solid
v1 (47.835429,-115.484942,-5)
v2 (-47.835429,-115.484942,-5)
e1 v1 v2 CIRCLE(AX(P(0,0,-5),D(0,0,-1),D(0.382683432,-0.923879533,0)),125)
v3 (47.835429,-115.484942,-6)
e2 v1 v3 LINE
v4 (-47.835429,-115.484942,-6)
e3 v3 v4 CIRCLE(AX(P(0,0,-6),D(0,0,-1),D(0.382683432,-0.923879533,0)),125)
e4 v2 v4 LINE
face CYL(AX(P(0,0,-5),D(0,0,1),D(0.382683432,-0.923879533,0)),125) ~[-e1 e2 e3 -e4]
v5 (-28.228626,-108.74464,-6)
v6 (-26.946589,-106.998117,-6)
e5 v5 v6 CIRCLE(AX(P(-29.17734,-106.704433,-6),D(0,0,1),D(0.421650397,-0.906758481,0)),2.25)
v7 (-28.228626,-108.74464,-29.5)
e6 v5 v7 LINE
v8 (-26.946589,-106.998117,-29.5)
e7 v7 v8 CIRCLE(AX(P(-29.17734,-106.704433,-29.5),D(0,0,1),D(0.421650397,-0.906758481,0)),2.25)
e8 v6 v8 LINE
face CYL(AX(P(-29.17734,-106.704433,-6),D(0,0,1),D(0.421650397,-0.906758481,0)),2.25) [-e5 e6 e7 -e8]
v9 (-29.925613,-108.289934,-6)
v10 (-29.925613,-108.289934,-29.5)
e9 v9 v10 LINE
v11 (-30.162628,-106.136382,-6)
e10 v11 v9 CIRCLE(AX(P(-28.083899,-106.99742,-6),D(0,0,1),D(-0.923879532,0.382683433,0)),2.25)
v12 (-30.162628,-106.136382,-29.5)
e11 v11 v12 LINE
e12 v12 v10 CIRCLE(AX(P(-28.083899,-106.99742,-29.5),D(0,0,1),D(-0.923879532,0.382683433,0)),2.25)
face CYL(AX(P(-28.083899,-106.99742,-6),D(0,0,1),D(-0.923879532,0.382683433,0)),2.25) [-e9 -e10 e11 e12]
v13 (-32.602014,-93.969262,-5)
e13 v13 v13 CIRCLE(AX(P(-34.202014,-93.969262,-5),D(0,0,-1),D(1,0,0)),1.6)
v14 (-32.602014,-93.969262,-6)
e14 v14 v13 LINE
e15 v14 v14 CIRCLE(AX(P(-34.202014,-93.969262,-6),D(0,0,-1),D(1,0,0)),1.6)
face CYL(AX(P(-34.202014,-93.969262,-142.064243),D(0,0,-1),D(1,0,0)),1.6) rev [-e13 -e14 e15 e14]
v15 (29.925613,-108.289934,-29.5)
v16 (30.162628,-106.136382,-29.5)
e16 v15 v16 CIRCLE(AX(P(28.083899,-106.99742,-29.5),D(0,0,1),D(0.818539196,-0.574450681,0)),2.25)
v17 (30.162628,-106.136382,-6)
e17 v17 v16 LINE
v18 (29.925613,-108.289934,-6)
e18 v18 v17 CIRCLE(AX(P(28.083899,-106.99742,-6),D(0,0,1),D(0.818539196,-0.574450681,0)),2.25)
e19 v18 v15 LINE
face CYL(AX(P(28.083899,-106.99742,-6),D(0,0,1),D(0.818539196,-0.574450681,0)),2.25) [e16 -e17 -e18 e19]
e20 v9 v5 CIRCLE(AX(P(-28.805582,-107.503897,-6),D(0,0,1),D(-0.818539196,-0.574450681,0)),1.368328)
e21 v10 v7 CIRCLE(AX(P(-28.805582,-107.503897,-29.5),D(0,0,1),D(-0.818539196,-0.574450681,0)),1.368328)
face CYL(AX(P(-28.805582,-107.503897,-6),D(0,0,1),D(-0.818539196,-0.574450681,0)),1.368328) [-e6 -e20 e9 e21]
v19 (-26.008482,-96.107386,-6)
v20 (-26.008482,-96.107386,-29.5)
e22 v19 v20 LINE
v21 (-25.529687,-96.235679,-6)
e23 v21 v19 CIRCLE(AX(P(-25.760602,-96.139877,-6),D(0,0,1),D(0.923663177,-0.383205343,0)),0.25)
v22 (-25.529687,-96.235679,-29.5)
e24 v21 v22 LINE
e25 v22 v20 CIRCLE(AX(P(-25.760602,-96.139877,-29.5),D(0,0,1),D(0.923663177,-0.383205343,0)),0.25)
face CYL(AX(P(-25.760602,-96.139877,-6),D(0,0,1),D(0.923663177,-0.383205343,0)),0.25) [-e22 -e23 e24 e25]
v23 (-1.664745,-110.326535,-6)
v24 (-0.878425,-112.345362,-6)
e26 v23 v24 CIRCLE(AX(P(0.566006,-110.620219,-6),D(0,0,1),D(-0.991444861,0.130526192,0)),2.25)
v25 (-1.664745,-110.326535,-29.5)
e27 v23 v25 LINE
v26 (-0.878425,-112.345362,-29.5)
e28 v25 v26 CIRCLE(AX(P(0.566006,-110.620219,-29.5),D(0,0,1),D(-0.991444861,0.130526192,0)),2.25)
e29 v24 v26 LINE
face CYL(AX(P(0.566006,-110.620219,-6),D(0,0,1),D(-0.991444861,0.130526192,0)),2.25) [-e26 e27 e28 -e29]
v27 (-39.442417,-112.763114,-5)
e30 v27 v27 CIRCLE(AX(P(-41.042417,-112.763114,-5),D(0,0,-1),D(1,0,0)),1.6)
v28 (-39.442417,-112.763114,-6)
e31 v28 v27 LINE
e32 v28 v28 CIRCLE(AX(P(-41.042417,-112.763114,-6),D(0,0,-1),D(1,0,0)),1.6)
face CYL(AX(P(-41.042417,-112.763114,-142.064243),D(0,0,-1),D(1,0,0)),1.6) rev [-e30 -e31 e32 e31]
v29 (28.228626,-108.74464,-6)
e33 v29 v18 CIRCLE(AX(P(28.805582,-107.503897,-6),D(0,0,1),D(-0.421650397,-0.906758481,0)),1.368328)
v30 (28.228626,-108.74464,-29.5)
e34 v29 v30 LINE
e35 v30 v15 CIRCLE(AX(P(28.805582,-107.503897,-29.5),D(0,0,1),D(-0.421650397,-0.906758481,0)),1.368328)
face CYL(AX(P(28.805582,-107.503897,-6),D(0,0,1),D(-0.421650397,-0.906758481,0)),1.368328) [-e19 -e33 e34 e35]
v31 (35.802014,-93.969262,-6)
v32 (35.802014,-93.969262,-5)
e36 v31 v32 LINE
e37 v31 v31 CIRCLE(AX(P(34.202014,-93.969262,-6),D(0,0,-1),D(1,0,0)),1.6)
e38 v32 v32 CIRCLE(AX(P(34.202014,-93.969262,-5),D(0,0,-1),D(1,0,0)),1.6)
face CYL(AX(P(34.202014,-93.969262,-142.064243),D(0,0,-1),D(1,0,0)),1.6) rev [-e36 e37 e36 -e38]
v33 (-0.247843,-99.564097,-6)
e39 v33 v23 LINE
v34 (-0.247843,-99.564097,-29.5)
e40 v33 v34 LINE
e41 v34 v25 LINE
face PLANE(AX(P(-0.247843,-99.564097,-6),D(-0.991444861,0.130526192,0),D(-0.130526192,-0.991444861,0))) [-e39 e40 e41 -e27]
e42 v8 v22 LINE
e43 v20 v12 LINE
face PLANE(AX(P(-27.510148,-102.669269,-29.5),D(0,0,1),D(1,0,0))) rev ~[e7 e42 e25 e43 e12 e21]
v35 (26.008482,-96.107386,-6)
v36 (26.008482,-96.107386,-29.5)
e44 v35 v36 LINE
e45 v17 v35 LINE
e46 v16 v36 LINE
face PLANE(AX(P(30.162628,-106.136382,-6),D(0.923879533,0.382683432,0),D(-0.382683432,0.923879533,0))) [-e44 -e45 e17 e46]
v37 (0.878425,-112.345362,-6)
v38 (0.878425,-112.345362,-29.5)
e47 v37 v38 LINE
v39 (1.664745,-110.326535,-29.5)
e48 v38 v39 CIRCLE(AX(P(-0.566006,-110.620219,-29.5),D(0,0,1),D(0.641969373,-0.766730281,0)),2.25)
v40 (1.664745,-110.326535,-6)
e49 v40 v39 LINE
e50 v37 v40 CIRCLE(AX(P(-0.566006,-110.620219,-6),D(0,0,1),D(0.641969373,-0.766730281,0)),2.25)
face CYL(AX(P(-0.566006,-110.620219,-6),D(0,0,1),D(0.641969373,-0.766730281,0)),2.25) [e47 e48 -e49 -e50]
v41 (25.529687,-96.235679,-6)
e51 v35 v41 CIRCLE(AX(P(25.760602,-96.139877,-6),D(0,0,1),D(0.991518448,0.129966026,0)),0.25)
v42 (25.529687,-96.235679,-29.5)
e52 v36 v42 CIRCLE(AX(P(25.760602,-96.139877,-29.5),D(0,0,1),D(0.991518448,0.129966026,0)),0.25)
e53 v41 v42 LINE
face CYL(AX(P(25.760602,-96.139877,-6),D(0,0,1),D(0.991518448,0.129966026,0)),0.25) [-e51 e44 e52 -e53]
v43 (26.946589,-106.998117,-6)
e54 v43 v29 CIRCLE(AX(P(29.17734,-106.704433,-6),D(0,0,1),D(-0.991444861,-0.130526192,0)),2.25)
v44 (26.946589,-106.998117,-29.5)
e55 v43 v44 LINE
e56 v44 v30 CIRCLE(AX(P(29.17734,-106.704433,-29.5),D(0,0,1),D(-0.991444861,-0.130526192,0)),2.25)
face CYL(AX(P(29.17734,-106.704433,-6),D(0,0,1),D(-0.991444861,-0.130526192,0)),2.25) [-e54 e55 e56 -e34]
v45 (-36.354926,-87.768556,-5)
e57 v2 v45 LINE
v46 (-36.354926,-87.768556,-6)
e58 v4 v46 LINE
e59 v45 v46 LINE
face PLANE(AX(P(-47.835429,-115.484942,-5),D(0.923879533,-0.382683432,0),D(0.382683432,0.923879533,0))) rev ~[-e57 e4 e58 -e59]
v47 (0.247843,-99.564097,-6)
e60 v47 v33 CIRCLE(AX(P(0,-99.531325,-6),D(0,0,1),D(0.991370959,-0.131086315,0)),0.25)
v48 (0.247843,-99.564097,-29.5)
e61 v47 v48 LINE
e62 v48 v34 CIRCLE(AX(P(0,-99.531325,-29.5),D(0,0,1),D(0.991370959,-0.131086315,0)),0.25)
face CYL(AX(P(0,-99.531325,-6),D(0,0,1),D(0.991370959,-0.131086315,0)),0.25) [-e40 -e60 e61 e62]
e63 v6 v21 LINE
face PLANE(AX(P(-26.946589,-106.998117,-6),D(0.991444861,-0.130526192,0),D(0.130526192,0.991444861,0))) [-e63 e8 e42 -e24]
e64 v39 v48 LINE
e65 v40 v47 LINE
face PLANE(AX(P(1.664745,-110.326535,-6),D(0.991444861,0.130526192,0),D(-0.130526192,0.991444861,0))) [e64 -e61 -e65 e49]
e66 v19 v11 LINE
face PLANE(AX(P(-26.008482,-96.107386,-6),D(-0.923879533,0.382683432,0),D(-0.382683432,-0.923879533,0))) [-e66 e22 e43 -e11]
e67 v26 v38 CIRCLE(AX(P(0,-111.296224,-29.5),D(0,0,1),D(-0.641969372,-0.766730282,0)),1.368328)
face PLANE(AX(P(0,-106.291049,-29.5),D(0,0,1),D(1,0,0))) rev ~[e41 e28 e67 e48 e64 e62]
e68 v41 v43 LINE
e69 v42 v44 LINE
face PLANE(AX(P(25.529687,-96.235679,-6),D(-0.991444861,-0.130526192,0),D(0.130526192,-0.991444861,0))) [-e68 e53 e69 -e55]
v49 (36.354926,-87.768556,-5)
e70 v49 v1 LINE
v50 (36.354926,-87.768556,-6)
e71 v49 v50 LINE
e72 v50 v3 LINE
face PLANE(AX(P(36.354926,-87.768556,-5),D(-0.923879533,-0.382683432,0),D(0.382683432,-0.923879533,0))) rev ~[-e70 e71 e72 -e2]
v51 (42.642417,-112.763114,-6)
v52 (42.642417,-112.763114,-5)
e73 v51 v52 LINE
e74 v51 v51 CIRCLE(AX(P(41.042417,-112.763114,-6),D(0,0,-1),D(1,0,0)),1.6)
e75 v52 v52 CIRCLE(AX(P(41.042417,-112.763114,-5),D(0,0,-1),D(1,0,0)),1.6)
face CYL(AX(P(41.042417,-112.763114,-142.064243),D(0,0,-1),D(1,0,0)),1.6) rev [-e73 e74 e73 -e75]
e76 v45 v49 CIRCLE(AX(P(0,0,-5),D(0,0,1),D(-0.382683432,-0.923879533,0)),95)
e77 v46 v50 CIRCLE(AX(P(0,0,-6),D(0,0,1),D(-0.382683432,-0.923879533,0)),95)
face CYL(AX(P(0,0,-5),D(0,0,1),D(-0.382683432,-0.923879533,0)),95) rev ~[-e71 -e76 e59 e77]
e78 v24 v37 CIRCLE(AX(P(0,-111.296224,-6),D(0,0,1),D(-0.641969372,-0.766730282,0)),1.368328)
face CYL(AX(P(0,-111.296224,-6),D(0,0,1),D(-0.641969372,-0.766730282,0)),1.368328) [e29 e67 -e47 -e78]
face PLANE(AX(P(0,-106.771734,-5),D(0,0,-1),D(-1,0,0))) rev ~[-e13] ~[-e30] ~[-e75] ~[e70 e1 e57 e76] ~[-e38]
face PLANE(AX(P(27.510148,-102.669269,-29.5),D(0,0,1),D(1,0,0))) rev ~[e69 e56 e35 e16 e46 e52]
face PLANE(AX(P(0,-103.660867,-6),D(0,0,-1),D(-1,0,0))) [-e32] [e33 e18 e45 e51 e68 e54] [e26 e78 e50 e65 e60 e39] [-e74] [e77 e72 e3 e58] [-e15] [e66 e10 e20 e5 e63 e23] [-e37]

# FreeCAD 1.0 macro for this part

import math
import FreeCAD as App
import Part
import Sketcher

V = App.Vector
Q = App.Units.Quantity

doc = App.newDocument("Part")
params = doc.addObject("Spreadsheet::Sheet", "Params")
for row, (alias, value) in enumerate([
    ("sketch1_radius", "125 mm"),
    ("sketch1_radius2", "95 mm"),
    ("sketch1_radius3", "100.75 mm"),
    ("sketch1_radius4", "109.25 mm"),
    ("pad1_length", "1 mm"),
    ("sketch2_radius", "100.75 mm"),
    ("sketch2_radius2", "109.25 mm"),
    ("pad2_length", "5 mm"),
    ("sketch3_radius", "100.75 mm"),
    ("sketch3_radius2", "109.25 mm"),
    ("pad3_length", "1 mm"),
    ("pad3_length2", "6 mm"),
    ("sketch4_radius", "0.25 mm"),
    ("sketch4_radius2", "2.25 mm"),
    ("pad4_length", "23.5 mm"),
    ("sketch5_radius", "109.25 mm"),
    ("sketch5_radius2", "100.75 mm"),
    ("pocket1_length", "6 mm"),
    ("sketch6_diameter", "3.2 mm"),
], start=1):
    params.set(f"A{row}", alias)
    params.set(f"B{row}", "=" + value)
    params.setAlias(f"B{row}", alias)

body = doc.addObject("PartDesign::Body", "Body")

# Sketch on XY plane
sketch1 = body.newObject("Sketcher::SketchObject", "Sketch")
sketch1.AttachmentSupport = (doc.getObject("XY_Plane"), [""])
sketch1.MapMode = "FlatFace"
sketch1.AttachmentOffset = App.Placement(V(0, 0, -5), App.Rotation())
sketch1.addGeometry([
    Part.LineSegment(V(-36.354926, -87.768556, 0), V(-47.835429, -115.484942, 0)),  # 0
    Part.ArcOfCircle(Part.Circle(V(0, 0, 0), V(0, 0, 1), 125), math.radians(-112.5), math.radians(-67.5)),  # 1
    Part.LineSegment(V(47.835429, -115.484942, 0), V(36.354926, -87.768556, 0)),  # 2
    Part.ArcOfCircle(Part.Circle(V(0, 0, 0), V(0, 0, 1), 95), math.radians(-112.5), math.radians(-67.5)),  # 3
    Part.LineSegment(V(-26.038477, -106.10165, 0), V(-23.955924, -97.860494, 0)),  # 4
    Part.ArcOfCircle(Part.Circle(V(0, 0, 0), V(0, 0, 1), 100.75), math.radians(-103.75531), math.radians(-76.24469)),  # 5
    Part.LineSegment(V(23.955924, -97.860494, 0), V(26.038477, -106.10165, 0)),  # 6
    Part.ArcOfCircle(Part.Circle(V(0, 0, 0), V(0, 0, 1), 109.25), math.radians(-103.788496), math.radians(-76.211504)),  # 7
], False)
sketch1.addConstraint([
    Sketcher.Constraint("Coincident", 0, 2, 1, 1),
    Sketcher.Constraint("Coincident", 1, 2, 2, 1),
    Sketcher.Constraint("Coincident", 2, 2, 3, 2),
    Sketcher.Constraint("Coincident", 3, 1, 0, 1),
    Sketcher.Constraint("Coincident", 4, 2, 5, 1),
    Sketcher.Constraint("Coincident", 5, 2, 6, 1),
    Sketcher.Constraint("Coincident", 6, 2, 7, 2),
    Sketcher.Constraint("Coincident", 7, 1, 4, 1),
    Sketcher.Constraint("Coincident", 1, 3, -1, 1),
    Sketcher.Constraint("Coincident", 3, 3, -1, 1),
    Sketcher.Constraint("Coincident", 5, 3, -1, 1),
    Sketcher.Constraint("Coincident", 7, 3, -1, 1),
    Sketcher.Constraint("Horizontal", 0, 2, 1, 2),
    Sketcher.Constraint("Horizontal", 2, 2, 3, 1),
    Sketcher.Constraint("Horizontal", 4, 2, 5, 2),
    Sketcher.Constraint("Horizontal", 6, 2, 7, 1),
    Sketcher.Constraint("Radius", 1, 125.0),
    Sketcher.Constraint("Radius", 3, 95.0),
    Sketcher.Constraint("Radius", 5, 100.75),
    Sketcher.Constraint("Radius", 7, 109.25),
    Sketcher.Constraint("Angle", 0, Q("-112.5 deg")),
    Sketcher.Constraint("DistanceX", 4, 2, 6, 2, 49.994401),
    Sketcher.Constraint("DistanceX", 0, 2, -1, 1, 47.835429),
    Sketcher.Constraint("DistanceY", 6, 2, -1, 1, 106.10165),
])
sketch1.setExpression("Constraints[16]", "Params.sketch1_radius")
sketch1.setExpression("Constraints[17]", "Params.sketch1_radius2")
sketch1.setExpression("Constraints[18]", "Params.sketch1_radius3")
sketch1.setExpression("Constraints[19]", "Params.sketch1_radius4")
pad1 = body.newObject("PartDesign::Pad", "Pad")
pad1.Profile = sketch1
pad1.setExpression("Length", "Params.pad1_length")
pad1.Reversed = True
body2 = doc.addObject("PartDesign::Body", "Body001")

# Sketch on XY plane
sketch2 = body2.newObject("Sketcher::SketchObject", "Sketch001")
sketch2.AttachmentSupport = (doc.getObject("XY_Plane001"), [""])
sketch2.MapMode = "FlatFace"
sketch2.AttachmentOffset = App.Placement(V(0, 0, -5), App.Rotation())
sketch2.addGeometry([
    Part.ArcOfCircle(Part.Circle(V(0, 0, 0), V(0, 0, 1), 100.75), math.radians(-103.75531), math.radians(-76.24469)),
    Part.LineSegment(V(-23.955924, -97.860494, 0), V(-26.038477, -106.10165, 0)),
    Part.ArcOfCircle(Part.Circle(V(0, 0, 0), V(0, 0, 1), 109.25), math.radians(-103.788496), math.radians(-76.211504)),
    Part.LineSegment(V(26.038477, -106.10165, 0), V(23.955924, -97.860494, 0)),
], False)
sketch2.addConstraint([
    Sketcher.Constraint("Coincident", 0, 1, 1, 1),
    Sketcher.Constraint("Coincident", 1, 2, 2, 1),
    Sketcher.Constraint("Coincident", 2, 2, 3, 1),
    Sketcher.Constraint("Coincident", 3, 2, 0, 2),
    Sketcher.Constraint("Coincident", 0, 3, -1, 1),
    Sketcher.Constraint("Coincident", 2, 3, -1, 1),
    Sketcher.Constraint("Horizontal", 1, 2, 2, 2),
    Sketcher.Constraint("Horizontal", 0, 1, 3, 2),
    Sketcher.Constraint("Radius", 0, 100.75),
    Sketcher.Constraint("Radius", 2, 109.25),
    Sketcher.Constraint("DistanceX", 0, 1, 2, 2, 49.994401),
    Sketcher.Constraint("DistanceY", 1, 2, -1, 1, 106.10165),
])
sketch2.setExpression("Constraints[8]", "Params.sketch2_radius")
sketch2.setExpression("Constraints[9]", "Params.sketch2_radius2")
pad2 = body2.newObject("PartDesign::Pad", "Pad001")
pad2.Profile = sketch2
pad2.setExpression("Length", "Params.pad2_length")
body.AllowCompound = True
doc.recompute()

boolean = body.newObject("PartDesign::Boolean", "Boolean")
boolean.Type = "Fuse"
boolean.addObjects([body2])

# Sketch on XY plane
sketch3 = body.newObject("Sketcher::SketchObject", "Sketch002")
sketch3.AttachmentSupport = (doc.getObject("XY_Plane"), [""])
sketch3.MapMode = "FlatFace"
sketch3.addGeometry([
    Part.ArcOfCircle(Part.Circle(V(0, 0, 0), V(0, 0, 1), 100.75), math.radians(-103.75531), math.radians(-76.24469)),
    Part.LineSegment(V(-23.955924, -97.860494, 0), V(-26.038477, -106.10165, 0)),
    Part.ArcOfCircle(Part.Circle(V(0, 0, 0), V(0, 0, 1), 109.25), math.radians(-103.788496), math.radians(-76.211504)),
    Part.LineSegment(V(26.038477, -106.10165, 0), V(23.955924, -97.860494, 0)),
], False)
sketch3.addConstraint([
    Sketcher.Constraint("Coincident", 0, 1, 1, 1),
    Sketcher.Constraint("Coincident", 1, 2, 2, 1),
    Sketcher.Constraint("Coincident", 2, 2, 3, 1),
    Sketcher.Constraint("Coincident", 3, 2, 0, 2),
    Sketcher.Constraint("Coincident", 0, 3, -1, 1),
    Sketcher.Constraint("Coincident", 2, 3, -1, 1),
    Sketcher.Constraint("Horizontal", 1, 2, 2, 2),
    Sketcher.Constraint("Horizontal", 0, 1, 3, 2),
    Sketcher.Constraint("Radius", 0, 100.75),
    Sketcher.Constraint("Radius", 2, 109.25),
    Sketcher.Constraint("DistanceX", 0, 1, 2, 2, 49.994401),
    Sketcher.Constraint("DistanceY", 1, 2, -1, 1, 106.10165),
])
sketch3.setExpression("Constraints[8]", "Params.sketch3_radius")
sketch3.setExpression("Constraints[9]", "Params.sketch3_radius2")
pad3 = body.newObject("PartDesign::Pad", "Pad002")
pad3.Profile = sketch3
pad3.Type = "TwoLengths"
pad3.setExpression("Length", "Params.pad3_length")
pad3.setExpression("Length2", "Params.pad3_length2")

# Sketch on XY plane
sketch4 = body.newObject("Sketcher::SketchObject", "Sketch003")
sketch4.AttachmentSupport = (doc.getObject("XY_Plane"), [""])
sketch4.MapMode = "FlatFace"
sketch4.AttachmentOffset = App.Placement(V(0, 0, -6), App.Rotation())
sketch4.addGeometry([
    Part.LineSegment(V(26.946589, -106.998117, 0), V(25.529687, -96.235679, 0)),  # 0
    Part.ArcOfCircle(Part.Circle(V(25.760602, -96.139877, 0), V(0, 0, 1), 0.25), math.radians(7.467629), math.radians(202.532371)),  # 1
    Part.LineSegment(V(26.008482, -96.107386, 0), V(30.162628, -106.136382, 0)),  # 2
    Part.ArcOfCircle(Part.Circle(V(28.083899, -106.99742, 0), V(0, 0, 1), 2.25), math.radians(-35.061172), math.radians(22.5)),  # 3
    Part.ArcOfCircle(Part.Circle(V(28.805582, -107.503897, 0), V(0, 0, 1), 1.368328), math.radians(-114.938828), math.radians(-35.061172)),  # 4
    Part.ArcOfCircle(Part.Circle(V(29.17734, -106.704433, 0), V(0, 0, 1), 2.25), math.radians(-172.5), math.radians(-114.938828)),  # 5
    Part.LineSegment(V(-1.664745, -110.326535, 0), V(-0.247843, -99.564097, 0)),  # 6
    Part.ArcOfCircle(Part.Circle(V(0, -99.531325, 0), V(0, 0, 1), 0.25), math.radians(-7.532371), math.radians(187.532371)),  # 7
    Part.LineSegment(V(0.247843, -99.564097, 0), V(1.664745, -110.326535, 0)),  # 8
    Part.ArcOfCircle(Part.Circle(V(-0.566006, -110.620219, 0), V(0, 0, 1), 2.25), math.radians(-50.061172), math.radians(7.5)),  # 9
    Part.ArcOfCircle(Part.Circle(V(0, -111.296224, 0), V(0, 0, 1), 1.368328), math.radians(-129.938828), math.radians(-50.061172)),  # 10
    Part.ArcOfCircle(Part.Circle(V(0.566006, -110.620219, 0), V(0, 0, 1), 2.25), math.radians(172.5), math.radians(230.061172)),  # 11
    Part.LineSegment(V(-30.162628, -106.136382, 0), V(-26.008482, -96.107386, 0)),  # 12
    Part.ArcOfCircle(Part.Circle(V(-25.760602, -96.139877, 0), V(0, 0, 1), 0.25), math.radians(-22.532371), math.radians(172.532371)),  # 13
    Part.LineSegment(V(-25.529687, -96.235679, 0), V(-26.946589, -106.998117, 0)),  # 14
    Part.ArcOfCircle(Part.Circle(V(-29.17734, -106.704433, 0), V(0, 0, 1), 2.25), math.radians(-65.061172), math.radians(-7.5)),  # 15
    Part.ArcOfCircle(Part.Circle(V(-28.805582, -107.503897, 0), V(0, 0, 1), 1.368328), math.radians(-144.938828), math.radians(-65.061172)),  # 16
    Part.ArcOfCircle(Part.Circle(V(-28.083899, -106.99742, 0), V(0, 0, 1), 2.25), math.radians(157.5), math.radians(215.061172)),  # 17
], False)
sketch4.addConstraint([
    Sketcher.Constraint("Coincident", 0, 2, 1, 2),
    Sketcher.Constraint("Coincident", 1, 1, 2, 1),
    Sketcher.Constraint("Tangent", 2, 2, 3, 2),
    Sketcher.Constraint("Tangent", 3, 1, 4, 2),
    Sketcher.Constraint("Tangent", 4, 1, 5, 2),
    Sketcher.Constraint("Tangent", 5, 1, 0, 1),
    Sketcher.Constraint("Coincident", 6, 2, 7, 2),
    Sketcher.Constraint("Coincident", 7, 1, 8, 1),
    Sketcher.Constraint("Tangent", 8, 2, 9, 2),
    Sketcher.Constraint("Tangent", 9, 1, 10, 2),
    Sketcher.Constraint("Tangent", 10, 1, 11, 2),
    Sketcher.Constraint("Tangent", 11, 1, 6, 1),
    Sketcher.Constraint("Coincident", 12, 2, 13, 2),
    Sketcher.Constraint("Coincident", 13, 1, 14, 1),
    Sketcher.Constraint("Tangent", 14, 2, 15, 2),
    Sketcher.Constraint("Tangent", 15, 1, 16, 2),
    Sketcher.Constraint("Tangent", 16, 1, 17, 2),
    Sketcher.Constraint("Tangent", 17, 1, 12, 1),
    Sketcher.Constraint("Equal", 3, 5),
    Sketcher.Constraint("Equal", 1, 7),
    Sketcher.Constraint("Equal", 5, 9),
    Sketcher.Constraint("Equal", 4, 10),
    Sketcher.Constraint("Equal", 9, 11),
    Sketcher.Constraint("Equal", 7, 13),
    Sketcher.Constraint("Equal", 11, 15),
    Sketcher.Constraint("Equal", 10, 16),
    Sketcher.Constraint("Equal", 15, 17),
    Sketcher.Constraint("Symmetric", 9, 3, 11, 3, -2),
    Sketcher.Constraint("Symmetric", 1, 3, 13, 3, -2),
    Sketcher.Constraint("Symmetric", 5, 3, 15, 3, -2),
    Sketcher.Constraint("Symmetric", 3, 3, 17, 3, -2),
    Sketcher.Constraint("Symmetric", 6, 2, 7, 1, -2),
    Sketcher.Constraint("Parallel", 0, 8),
    Sketcher.Constraint("Parallel", 6, 14),
    Sketcher.Constraint("Horizontal", 1, 1, 12, 2),
    Sketcher.Constraint("Equal", 0, 2),
    Sketcher.Constraint("Equal", 2, 6),
    Sketcher.Constraint("Radius", 1, 0.25),
    Sketcher.Constraint("Radius", 3, 2.25),
    Sketcher.Constraint("Angle", 0, Q("97.5 deg")),
    Sketcher.Constraint("Angle", 2, Q("-67.5 deg")),
    Sketcher.Constraint("Radius", 4, 1.368328),
    Sketcher.Constraint("DistanceX", -1, 1, 3, 3, 28.083899),
    Sketcher.Constraint("DistanceY", 9, 3, 3, 3, 3.622799),
    Sketcher.Constraint("DistanceY", 10, 3, 7, 3, 11.764899),
    Sketcher.Constraint("DistanceY", 0, 2, 1, 3, 0.095801),
    Sketcher.Constraint("DistanceX", 1, 1, 4, 3, 2.7971),
    Sketcher.Constraint("DistanceY", 3, 1, 5, 3, 1.5855),
    Sketcher.Constraint("DistanceY", 3, 3, -1, 1, 106.99742),
])
sketch4.setExpression("Constraints[37]", "Params.sketch4_radius")
sketch4.setExpression("Constraints[38]", "Params.sketch4_radius2")
pad4 = body.newObject("PartDesign::Pad", "Pad003")
pad4.Profile = sketch4
pad4.setExpression("Length", "Params.pad4_length")
pad4.Reversed = True

# Sketch on XY plane
sketch5 = body.newObject("Sketcher::SketchObject", "Sketch004")
sketch5.AttachmentSupport = (doc.getObject("XY_Plane"), [""])
sketch5.MapMode = "FlatFace"
sketch5.AttachmentOffset = App.Placement(V(0, 0, -5), App.Rotation())
sketch5.addGeometry([
    Part.LineSegment(V(-23.955924, -97.860494, 0), V(-26.038477, -106.10165, 0)),
    Part.ArcOfCircle(Part.Circle(V(0, 0, 0), V(0, 0, 1), 109.25), math.radians(-103.788496), math.radians(-76.211504)),
    Part.LineSegment(V(26.038477, -106.10165, 0), V(23.955924, -97.860494, 0)),
    Part.ArcOfCircle(Part.Circle(V(0, 0, 0), V(0, 0, 1), 100.75), math.radians(-103.75531), math.radians(-76.24469)),
], False)
sketch5.addConstraint([
    Sketcher.Constraint("Coincident", 0, 2, 1, 1),
    Sketcher.Constraint("Coincident", 1, 2, 2, 1),
    Sketcher.Constraint("Coincident", 2, 2, 3, 2),
    Sketcher.Constraint("Coincident", 3, 1, 0, 1),
    Sketcher.Constraint("Coincident", 1, 3, -1, 1),
    Sketcher.Constraint("Coincident", 3, 3, -1, 1),
    Sketcher.Constraint("Horizontal", 0, 2, 1, 2),
    Sketcher.Constraint("Horizontal", 2, 2, 3, 1),
    Sketcher.Constraint("Radius", 1, 109.25),
    Sketcher.Constraint("Radius", 3, 100.75),
    Sketcher.Constraint("DistanceX", 0, 2, 2, 2, 49.994401),
    Sketcher.Constraint("DistanceY", 0, 2, -1, 1, 106.10165),
])
sketch5.setExpression("Constraints[8]", "Params.sketch5_radius")
sketch5.setExpression("Constraints[9]", "Params.sketch5_radius2")
pocket1 = body.newObject("PartDesign::Pocket", "Pocket")
pocket1.Profile = sketch5
pocket1.setExpression("Length", "Params.pocket1_length")
pocket1.Reversed = True

# Sketch on XY plane
sketch6 = body.newObject("Sketcher::SketchObject", "Sketch005")
sketch6.AttachmentSupport = (doc.getObject("XY_Plane"), [""])
sketch6.MapMode = "FlatFace"
sketch6.AttachmentOffset = App.Placement(V(0, 0, -5), App.Rotation())
sketch6.addGeometry([
    Part.Circle(V(-34.202014, -93.969262, 0), V(0, 0, 1), 1.6),
    Part.Circle(V(-41.042417, -112.763114, 0), V(0, 0, 1), 1.6),
    Part.Circle(V(41.042417, -112.763114, 0), V(0, 0, 1), 1.6),
    Part.Circle(V(34.202014, -93.969262, 0), V(0, 0, 1), 1.6),
], False)
sketch6.addConstraint([
    Sketcher.Constraint("Equal", 0, 1),
    Sketcher.Constraint("Equal", 1, 2),
    Sketcher.Constraint("Equal", 2, 3),
    Sketcher.Constraint("Symmetric", 1, 3, 2, 3, -2),
    Sketcher.Constraint("Symmetric", 0, 3, 3, 3, -2),
    Sketcher.Constraint("Diameter", 0, 3.2),
    Sketcher.Constraint("DistanceX", 0, 3, 2, 3, 75.244432),
    Sketcher.Constraint("DistanceX", 0, 3, 3, 3, 68.404029),
    Sketcher.Constraint("DistanceY", 0, 3, -1, 1, 93.969262),
    Sketcher.Constraint("DistanceY", 1, 3, -1, 1, 112.763114),
])
sketch6.setExpression("Constraints[5]", "Params.sketch6_diameter")
pocket2 = body.newObject("PartDesign::Pocket", "Pocket001")
pocket2.Profile = sketch6
pocket2.Type = "ThroughAll"
pocket2.Midplane = True

doc.recompute()
